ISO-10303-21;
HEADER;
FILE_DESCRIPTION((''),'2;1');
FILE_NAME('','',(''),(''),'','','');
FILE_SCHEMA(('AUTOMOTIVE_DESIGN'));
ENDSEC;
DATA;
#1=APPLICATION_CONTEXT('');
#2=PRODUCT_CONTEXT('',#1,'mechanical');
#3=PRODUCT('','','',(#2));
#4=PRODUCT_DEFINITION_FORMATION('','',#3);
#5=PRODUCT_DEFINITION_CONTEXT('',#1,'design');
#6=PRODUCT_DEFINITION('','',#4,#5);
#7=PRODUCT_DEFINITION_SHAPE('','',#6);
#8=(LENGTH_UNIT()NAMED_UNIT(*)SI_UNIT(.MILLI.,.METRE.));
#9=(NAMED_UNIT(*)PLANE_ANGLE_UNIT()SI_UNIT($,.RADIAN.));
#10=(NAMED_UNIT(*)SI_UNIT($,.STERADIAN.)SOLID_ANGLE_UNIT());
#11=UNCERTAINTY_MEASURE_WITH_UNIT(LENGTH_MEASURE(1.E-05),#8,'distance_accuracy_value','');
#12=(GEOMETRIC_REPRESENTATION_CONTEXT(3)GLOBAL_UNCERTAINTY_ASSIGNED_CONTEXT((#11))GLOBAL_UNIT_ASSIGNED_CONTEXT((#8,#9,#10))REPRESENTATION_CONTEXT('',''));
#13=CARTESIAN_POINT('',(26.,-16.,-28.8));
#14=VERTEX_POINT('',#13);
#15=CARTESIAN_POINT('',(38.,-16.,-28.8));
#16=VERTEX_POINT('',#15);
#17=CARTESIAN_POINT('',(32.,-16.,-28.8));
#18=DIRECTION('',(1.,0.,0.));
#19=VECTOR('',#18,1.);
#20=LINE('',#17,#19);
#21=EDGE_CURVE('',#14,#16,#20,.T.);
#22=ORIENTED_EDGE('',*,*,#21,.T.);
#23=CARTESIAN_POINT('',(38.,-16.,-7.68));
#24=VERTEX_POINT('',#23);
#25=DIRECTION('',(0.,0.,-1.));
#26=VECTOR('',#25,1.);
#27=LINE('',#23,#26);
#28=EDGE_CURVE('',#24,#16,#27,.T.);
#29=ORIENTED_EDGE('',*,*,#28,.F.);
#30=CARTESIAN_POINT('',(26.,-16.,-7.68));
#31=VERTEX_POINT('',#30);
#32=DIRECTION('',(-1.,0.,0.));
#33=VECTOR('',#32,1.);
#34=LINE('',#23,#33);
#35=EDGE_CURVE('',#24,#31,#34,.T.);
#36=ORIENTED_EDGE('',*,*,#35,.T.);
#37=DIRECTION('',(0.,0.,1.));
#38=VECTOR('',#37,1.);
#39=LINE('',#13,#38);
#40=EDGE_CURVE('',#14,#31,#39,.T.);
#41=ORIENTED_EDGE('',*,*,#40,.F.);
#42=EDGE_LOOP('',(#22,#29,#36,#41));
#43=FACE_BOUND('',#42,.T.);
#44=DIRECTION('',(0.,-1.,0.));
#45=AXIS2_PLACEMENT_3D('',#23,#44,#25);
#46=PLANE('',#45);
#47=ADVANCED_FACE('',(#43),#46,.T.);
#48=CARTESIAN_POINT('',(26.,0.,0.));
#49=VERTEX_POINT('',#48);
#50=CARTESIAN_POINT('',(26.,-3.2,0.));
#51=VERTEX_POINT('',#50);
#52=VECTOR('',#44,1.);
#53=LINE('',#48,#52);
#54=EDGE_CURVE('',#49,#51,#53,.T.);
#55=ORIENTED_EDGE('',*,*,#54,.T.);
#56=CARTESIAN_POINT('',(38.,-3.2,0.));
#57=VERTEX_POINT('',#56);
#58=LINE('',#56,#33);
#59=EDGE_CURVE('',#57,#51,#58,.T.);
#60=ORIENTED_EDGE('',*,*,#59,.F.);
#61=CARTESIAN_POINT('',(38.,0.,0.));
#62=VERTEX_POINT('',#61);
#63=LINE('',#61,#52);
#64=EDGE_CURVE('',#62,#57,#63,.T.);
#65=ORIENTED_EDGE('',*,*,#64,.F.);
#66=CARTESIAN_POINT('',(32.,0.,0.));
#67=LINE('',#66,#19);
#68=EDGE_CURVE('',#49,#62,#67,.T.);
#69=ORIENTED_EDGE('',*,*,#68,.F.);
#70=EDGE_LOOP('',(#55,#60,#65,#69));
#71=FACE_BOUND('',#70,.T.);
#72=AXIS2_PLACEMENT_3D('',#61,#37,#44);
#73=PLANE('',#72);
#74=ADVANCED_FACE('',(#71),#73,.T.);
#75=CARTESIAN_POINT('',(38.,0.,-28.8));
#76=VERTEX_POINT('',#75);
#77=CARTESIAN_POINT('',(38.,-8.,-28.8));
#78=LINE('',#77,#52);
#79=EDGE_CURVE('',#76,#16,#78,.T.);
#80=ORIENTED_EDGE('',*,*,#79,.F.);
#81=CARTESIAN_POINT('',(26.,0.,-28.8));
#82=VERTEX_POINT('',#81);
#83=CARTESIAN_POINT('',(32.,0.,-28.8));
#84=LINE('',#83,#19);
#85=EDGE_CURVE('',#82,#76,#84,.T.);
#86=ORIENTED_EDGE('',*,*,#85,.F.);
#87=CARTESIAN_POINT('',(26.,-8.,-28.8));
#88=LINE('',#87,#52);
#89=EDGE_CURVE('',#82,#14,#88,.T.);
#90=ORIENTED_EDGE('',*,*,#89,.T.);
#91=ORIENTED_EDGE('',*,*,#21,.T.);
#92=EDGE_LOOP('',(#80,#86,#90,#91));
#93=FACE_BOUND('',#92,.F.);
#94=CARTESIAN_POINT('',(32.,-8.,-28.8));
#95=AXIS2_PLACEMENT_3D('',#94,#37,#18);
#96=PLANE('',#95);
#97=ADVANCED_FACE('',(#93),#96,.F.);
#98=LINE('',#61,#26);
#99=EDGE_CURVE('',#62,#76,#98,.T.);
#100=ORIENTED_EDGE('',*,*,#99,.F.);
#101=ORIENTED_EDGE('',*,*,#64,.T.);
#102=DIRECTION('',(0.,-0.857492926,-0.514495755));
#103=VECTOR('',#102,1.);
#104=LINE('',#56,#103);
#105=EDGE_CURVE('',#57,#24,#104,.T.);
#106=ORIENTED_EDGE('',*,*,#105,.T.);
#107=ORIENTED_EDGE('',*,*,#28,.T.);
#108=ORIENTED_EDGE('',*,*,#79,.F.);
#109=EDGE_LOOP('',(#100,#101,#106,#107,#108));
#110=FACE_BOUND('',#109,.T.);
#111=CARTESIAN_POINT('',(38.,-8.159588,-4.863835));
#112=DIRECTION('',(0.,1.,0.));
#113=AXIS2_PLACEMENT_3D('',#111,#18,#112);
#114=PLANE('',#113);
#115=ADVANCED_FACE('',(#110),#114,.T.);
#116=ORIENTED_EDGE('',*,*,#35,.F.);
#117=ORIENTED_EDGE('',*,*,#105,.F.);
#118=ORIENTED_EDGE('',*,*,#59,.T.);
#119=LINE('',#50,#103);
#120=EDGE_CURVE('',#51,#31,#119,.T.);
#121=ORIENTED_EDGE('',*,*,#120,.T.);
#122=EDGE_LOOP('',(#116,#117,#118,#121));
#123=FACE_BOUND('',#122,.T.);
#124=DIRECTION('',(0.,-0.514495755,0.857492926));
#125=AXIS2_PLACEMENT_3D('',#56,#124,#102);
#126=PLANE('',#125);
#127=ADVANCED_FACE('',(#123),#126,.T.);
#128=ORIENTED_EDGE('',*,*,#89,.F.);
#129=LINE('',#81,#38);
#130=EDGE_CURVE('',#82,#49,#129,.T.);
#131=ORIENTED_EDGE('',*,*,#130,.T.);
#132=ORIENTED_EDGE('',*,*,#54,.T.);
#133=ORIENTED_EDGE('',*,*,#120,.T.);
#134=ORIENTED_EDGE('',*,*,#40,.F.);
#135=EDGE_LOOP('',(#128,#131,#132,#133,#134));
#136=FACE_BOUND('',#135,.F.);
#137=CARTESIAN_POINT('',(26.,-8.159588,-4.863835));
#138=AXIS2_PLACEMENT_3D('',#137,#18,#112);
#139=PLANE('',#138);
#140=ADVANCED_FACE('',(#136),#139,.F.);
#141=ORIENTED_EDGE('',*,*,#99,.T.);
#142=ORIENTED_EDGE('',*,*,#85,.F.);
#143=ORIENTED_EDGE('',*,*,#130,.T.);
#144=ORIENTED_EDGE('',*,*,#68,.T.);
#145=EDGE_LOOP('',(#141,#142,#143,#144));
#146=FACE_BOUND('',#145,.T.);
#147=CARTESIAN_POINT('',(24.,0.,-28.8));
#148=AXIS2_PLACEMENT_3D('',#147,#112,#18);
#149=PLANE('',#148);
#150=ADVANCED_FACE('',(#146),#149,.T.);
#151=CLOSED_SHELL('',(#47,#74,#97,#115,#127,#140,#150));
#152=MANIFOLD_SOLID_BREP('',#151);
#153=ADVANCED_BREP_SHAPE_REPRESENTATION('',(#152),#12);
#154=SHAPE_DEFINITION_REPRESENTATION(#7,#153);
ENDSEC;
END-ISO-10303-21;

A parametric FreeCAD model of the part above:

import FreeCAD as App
import Part
import Sketcher
from FreeCAD import Vector
Q = App.Units.Quantity


def add_polygon(sketch, points):
    """Adds a closed chain of lines whose ends are joined by coincident constraints."""
    first, n = sketch.GeometryCount, len(points)
    for a, b in zip(points, points[1:] + points[:1]):
        sketch.addGeometry(Part.LineSegment(App.Vector(*a, 0), App.Vector(*b, 0)), False)
    for i in range(n):
        sketch.addConstraint(Sketcher.Constraint("Coincident", first + i, 2, first + (i + 1) % n, 1))

doc = App.newDocument("Part")
body = doc.addObject("PartDesign::Body", "Body")

# Sketch on XY plane
sketch1 = doc.addObject("Sketcher::SketchObject", "Sketch")
body.addObject(sketch1)
sketch1.AttachmentSupport = (doc.XY_Plane, [""])
sketch1.MapMode = "FlatFace"
sketch1.AttachmentOffset = App.Placement(Vector(0, 0, -28.8), App.Rotation())
add_polygon(sketch1, [(24, 0), (24, -16), (40, -16), (40, 0)])  # lines 0-3
sketch1.addConstraint([
    Sketcher.Constraint("Vertical", 0),
    Sketcher.Constraint("Horizontal", 1),
    Sketcher.Constraint("Vertical", 2),
    Sketcher.Constraint("Horizontal", 3),
    Sketcher.Constraint("PointOnObject", 2, 2, -1),
    Sketcher.Constraint("Equal", 3, 0),
    Sketcher.Constraint("DistanceX", 1, 1, 1, 2, Q("16 mm")),
    Sketcher.Constraint("DistanceX", -1, 1, 0, 2, Q("24 mm")),
])
pad1 = doc.addObject("PartDesign::Pad", "Pad")
body.addObject(pad1)
pad1.Profile = sketch1
pad1.Length = 28.8

# Sketch on YZ plane
sketch2 = doc.addObject("Sketcher::SketchObject", "Sketch001")
body.addObject(sketch2)
sketch2.AttachmentSupport = (doc.YZ_Plane, [""])
sketch2.MapMode = "FlatFace"
sketch2.AttachmentOffset = App.Placement(Vector(0, 0, 40), App.Rotation())
add_polygon(sketch2, [(-16, 0), (-16, -9.6), (0, 0)])  # lines 0-2
sketch2.addConstraint([
    Sketcher.Constraint("Vertical", 0),
    Sketcher.Constraint("Horizontal", 2),
    Sketcher.Constraint("Coincident", 1, 2, -1, 1),
    Sketcher.Constraint("DistanceX", 2, 2, 2, 1, Q("16 mm")),
    Sketcher.Constraint("DistanceY", 0, 2, 0, 1, Q("9.6 mm")),
])
pocket1 = doc.addObject("PartDesign::Pocket", "Pocket")
body.addObject(pocket1)
pocket1.Profile = sketch2
pocket1.Length = 16

# Sketch on XY plane
sketch3 = doc.addObject("Sketcher::SketchObject", "Sketch002")
body.addObject(sketch3)
sketch3.AttachmentSupport = (doc.XY_Plane, [""])
sketch3.MapMode = "FlatFace"
sketch3.AttachmentOffset = App.Placement(Vector(0, 0, -28.8), App.Rotation())
add_polygon(sketch3, [(24, -16), (24, 0), (26, 0), (26, -16)])  # lines 0-3
add_polygon(sketch3, [(38, -16), (38, 0), (40, 0), (40, -16)])  # lines 4-7
sketch3.addConstraint([
    Sketcher.Constraint("Vertical", 0),
    Sketcher.Constraint("Horizontal", 1),
    Sketcher.Constraint("Vertical", 2),
    Sketcher.Constraint("Horizontal", 3),
    Sketcher.Constraint("Vertical", 4),
    Sketcher.Constraint("Horizontal", 5),
    Sketcher.Constraint("Vertical", 6),
    Sketcher.Constraint("Horizontal", 7),
    Sketcher.Constraint("PointOnObject", 0, 2, -1),
    Sketcher.Constraint("PointOnObject", 4, 2, -1),
    Sketcher.Constraint("Horizontal", 3, 2, 6, 2),
    Sketcher.Constraint("Equal", 3, 5),
    Sketcher.Constraint("DistanceX", 1, 1, 1, 2, Q("2 mm")),
    Sketcher.Constraint("DistanceY", 0, 1, 0, 2, Q("16 mm")),
    Sketcher.Constraint("DistanceX", -1, 1, 0, 2, Q("24 mm")),
    Sketcher.Constraint("DistanceX", -1, 1, 4, 2, Q("38 mm")),
])
pocket2 = doc.addObject("PartDesign::Pocket", "Pocket001")
body.addObject(pocket2)
pocket2.Profile = sketch3
pocket2.Length = 30
pocket2.Reversed = True

# Sketch on YZ plane
sketch4 = doc.addObject("Sketcher::SketchObject", "Sketch003")
body.addObject(sketch4)
sketch4.AttachmentSupport = (doc.YZ_Plane, [""])
sketch4.MapMode = "FlatFace"
sketch4.AttachmentOffset = App.Placement(Vector(0, 0, 38), App.Rotation())
add_polygon(sketch4, [(0, 0), (-3.2, 0), (-16, -7.68), (-16, -10.88), (-3.2, -3.2), (0, -3.2)])  # lines 0-5
sketch4.addConstraint([
    Sketcher.Constraint("Horizontal", 0),
    Sketcher.Constraint("Vertical", 2),
    Sketcher.Constraint("Horizontal", 4),
    Sketcher.Constraint("Vertical", 5),
    Sketcher.Constraint("Coincident", 5, 2, -1, 1),
    Sketcher.Constraint("Parallel", 1, 3),
    Sketcher.Constraint("Vertical", 0, 2, 3, 2),
    Sketcher.Constraint("Equal", 4, 2),
    Sketcher.Constraint("DistanceX", 0, 2, 0, 1, Q("3.2 mm")),
    Sketcher.Constraint("DistanceX", 1, 2, -1, 1, Q("16 mm")),
    Sketcher.Constraint("DistanceY", 1, 2, -1, 1, Q("7.68 mm")),
])
pad2 = doc.addObject("PartDesign::Pad", "Pad001")
body.addObject(pad2)
pad2.Profile = sketch4
pad2.Length = 12
pad2.Reversed = True

doc.recompute()
